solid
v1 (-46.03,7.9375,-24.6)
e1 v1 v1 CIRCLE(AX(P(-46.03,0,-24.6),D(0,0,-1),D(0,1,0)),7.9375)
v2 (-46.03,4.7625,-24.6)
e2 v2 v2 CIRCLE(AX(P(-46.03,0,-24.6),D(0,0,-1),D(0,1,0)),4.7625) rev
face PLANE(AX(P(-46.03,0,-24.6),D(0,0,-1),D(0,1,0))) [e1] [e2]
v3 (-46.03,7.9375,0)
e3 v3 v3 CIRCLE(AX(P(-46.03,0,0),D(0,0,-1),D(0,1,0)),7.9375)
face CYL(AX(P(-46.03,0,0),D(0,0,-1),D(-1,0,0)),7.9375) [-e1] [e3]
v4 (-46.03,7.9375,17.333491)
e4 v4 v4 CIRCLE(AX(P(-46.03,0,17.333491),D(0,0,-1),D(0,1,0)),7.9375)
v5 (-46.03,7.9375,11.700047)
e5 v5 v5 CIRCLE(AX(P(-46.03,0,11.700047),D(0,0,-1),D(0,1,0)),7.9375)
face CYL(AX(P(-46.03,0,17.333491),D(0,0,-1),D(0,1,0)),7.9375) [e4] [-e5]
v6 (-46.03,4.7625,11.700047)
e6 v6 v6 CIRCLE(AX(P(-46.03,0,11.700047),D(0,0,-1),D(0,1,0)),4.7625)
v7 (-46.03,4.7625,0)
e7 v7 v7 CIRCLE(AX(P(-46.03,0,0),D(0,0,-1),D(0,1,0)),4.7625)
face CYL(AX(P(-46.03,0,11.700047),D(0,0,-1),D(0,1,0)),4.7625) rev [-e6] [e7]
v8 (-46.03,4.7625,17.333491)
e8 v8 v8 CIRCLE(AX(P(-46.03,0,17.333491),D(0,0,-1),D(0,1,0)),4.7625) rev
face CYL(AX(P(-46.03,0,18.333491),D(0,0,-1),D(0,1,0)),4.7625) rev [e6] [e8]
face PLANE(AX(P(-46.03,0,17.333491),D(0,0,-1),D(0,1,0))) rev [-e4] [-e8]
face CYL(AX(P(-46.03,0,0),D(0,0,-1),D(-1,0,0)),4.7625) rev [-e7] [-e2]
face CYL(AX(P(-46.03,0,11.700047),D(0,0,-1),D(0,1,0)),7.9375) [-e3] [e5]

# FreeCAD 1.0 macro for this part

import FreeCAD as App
import Part
import Sketcher
Q = App.Units.Quantity

doc = App.newDocument("Part")
body = doc.addObject("PartDesign::Body", "Body")

# Sketch on XY plane
sketch1 = body.newObject("Sketcher::SketchObject", "Sketch")
sketch1.AttachmentSupport = (doc.getObject("XY_Plane"), [""])
sketch1.MapMode = "FlatFace"
sketch1.AttachmentOffset = App.Placement(App.Vector(0, 0, -24.6), App.Rotation())
sketch1.addGeometry(Part.Circle(App.Vector(-46, 0, 0), App.Vector(0, 0, 1), 8), False)
sketch1.addConstraint([
    Sketcher.Constraint("PointOnObject", 0, 3, -1),
    Sketcher.Constraint("Diameter", 0, Q("0.625 in")),
    Sketcher.Constraint("DistanceX", 0, 3, -1, 1, Q("46.03 mm")),
])

# Sketch on XZ plane
sketch2 = body.newObject("Sketcher::SketchObject", "Sketch001")
sketch2.AttachmentSupport = (doc.getObject("XZ_Plane"), [""])
sketch2.MapMode = "FlatFace"
sketch2.addGeometry([
    Part.LineSegment(App.Vector(-46, -25, 0), App.Vector(-46, 12, 0)),
    Part.LineSegment(App.Vector(-46, 12, 0), App.Vector(-46, 17, 0)),
], False)
sketch2.addConstraint([
    Sketcher.Constraint("Coincident", 0, 2, 1, 1),
    Sketcher.Constraint("Vertical", 0),
    Sketcher.Constraint("Vertical", 1),
    Sketcher.Constraint("DistanceX", 0, 1, -1, 1, Q("46.03 mm")),
    Sketcher.Constraint("DistanceY", 0, 1, -1, 1, Q("24.6 mm")),
    Sketcher.Constraint("DistanceY", 0, 1, 0, 2, Q("36.300047 mm")),
    Sketcher.Constraint("DistanceY", 1, 1, 1, 2, Q("5.633444 mm")),
])
doc.recompute()

additivepipe = body.newObject("PartDesign::AdditivePipe", "AdditivePipe")
additivepipe.Profile = sketch1
additivepipe.Spine = (sketch2, ["Edge1", "Edge2"])

# Sketch on XY plane
sketch3 = body.newObject("Sketcher::SketchObject", "Sketch002")
sketch3.AttachmentSupport = (doc.getObject("XY_Plane"), [""])
sketch3.MapMode = "FlatFace"
sketch3.AttachmentOffset = App.Placement(App.Vector(0, 0, -24.6), App.Rotation())
sketch3.addGeometry(Part.Circle(App.Vector(-46, 0, 0), App.Vector(0, 0, 1), 4.8), False)
sketch3.addConstraint([
    Sketcher.Constraint("PointOnObject", 0, 3, -1),
    Sketcher.Constraint("Diameter", 0, Q("0.375 in")),
    Sketcher.Constraint("DistanceX", 0, 3, -1, 1, Q("46.03 mm")),
])

# Sketch on XZ plane
sketch4 = body.newObject("Sketcher::SketchObject", "Sketch003")
sketch4.AttachmentSupport = (doc.getObject("XZ_Plane"), [""])
sketch4.MapMode = "FlatFace"
sketch4.addGeometry([
    Part.LineSegment(App.Vector(-46, -25, 0), App.Vector(-46, 12, 0)),
    Part.LineSegment(App.Vector(-46, 12, 0), App.Vector(-46, 17, 0)),
], False)
sketch4.addConstraint([
    Sketcher.Constraint("Coincident", 0, 2, 1, 1),
    Sketcher.Constraint("Vertical", 0),
    Sketcher.Constraint("Vertical", 1),
    Sketcher.Constraint("DistanceX", 0, 1, -1, 1, Q("46.03 mm")),
    Sketcher.Constraint("DistanceY", 0, 1, -1, 1, Q("24.6 mm")),
    Sketcher.Constraint("DistanceY", 0, 1, 0, 2, Q("36.300047 mm")),
    Sketcher.Constraint("DistanceY", 1, 1, 1, 2, Q("5.633444 mm")),
])
doc.recompute()

subtractivepipe = body.newObject("PartDesign::SubtractivePipe", "SubtractivePipe")
subtractivepipe.Profile = sketch3
subtractivepipe.Spine = (sketch4, ["Edge1", "Edge2"])

doc.recompute()
